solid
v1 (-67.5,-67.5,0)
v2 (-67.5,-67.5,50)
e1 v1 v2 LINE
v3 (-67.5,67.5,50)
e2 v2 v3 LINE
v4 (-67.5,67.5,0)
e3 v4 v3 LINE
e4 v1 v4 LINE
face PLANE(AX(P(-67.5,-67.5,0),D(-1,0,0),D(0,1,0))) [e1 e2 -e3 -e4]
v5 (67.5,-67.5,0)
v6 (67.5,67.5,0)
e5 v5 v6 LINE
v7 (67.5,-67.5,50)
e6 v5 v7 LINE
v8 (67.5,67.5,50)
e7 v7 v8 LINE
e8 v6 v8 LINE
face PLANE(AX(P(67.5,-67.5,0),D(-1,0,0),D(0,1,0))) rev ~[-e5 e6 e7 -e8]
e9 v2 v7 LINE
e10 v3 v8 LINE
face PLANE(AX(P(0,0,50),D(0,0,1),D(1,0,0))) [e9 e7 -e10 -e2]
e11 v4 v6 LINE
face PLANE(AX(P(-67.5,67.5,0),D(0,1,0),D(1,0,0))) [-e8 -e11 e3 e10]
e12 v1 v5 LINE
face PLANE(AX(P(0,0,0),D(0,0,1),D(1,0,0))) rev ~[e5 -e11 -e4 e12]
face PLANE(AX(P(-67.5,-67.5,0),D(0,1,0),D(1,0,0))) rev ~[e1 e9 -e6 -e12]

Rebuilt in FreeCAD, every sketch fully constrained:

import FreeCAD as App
import Part
import Sketcher
from FreeCAD import Vector

doc = App.newDocument("Part")
params = doc.addObject("Spreadsheet::Sheet", "Params")
for row, (alias, value) in enumerate([
    ("sketch1_width", "135 mm"),
    ("pad1_length", "50 mm"),
], start=1):
    params.set(f"A{row}", alias)
    params.set(f"B{row}", "=" + value)
    params.setAlias(f"B{row}", alias)

body = doc.addObject("PartDesign::Body", "Body")

sketch1 = doc.addObject("Sketcher::SketchObject", "Sketch")
body.addObject(sketch1)
sketch1.AttachmentSupport = (doc.XY_Plane, [""])
sketch1.MapMode = "FlatFace"
sketch1.addGeometry([
    Part.LineSegment(Vector(-67.5, 67.5, 0), Vector(-67.5, -67.5, 0)),
    Part.LineSegment(Vector(-67.5, -67.5, 0), Vector(67.5, -67.5, 0)),
    Part.LineSegment(Vector(67.5, -67.5, 0), Vector(67.5, 67.5, 0)),
    Part.LineSegment(Vector(67.5, 67.5, 0), Vector(-67.5, 67.5, 0)),
], False)
sketch1.addConstraint([
    Sketcher.Constraint("Coincident", 0, 2, 1, 1),
    Sketcher.Constraint("Coincident", 1, 2, 2, 1),
    Sketcher.Constraint("Coincident", 2, 2, 3, 1),
    Sketcher.Constraint("Coincident", 3, 2, 0, 1),
    Sketcher.Constraint("Vertical", 0),
    Sketcher.Constraint("Horizontal", 1),
    Sketcher.Constraint("Vertical", 2),
    Sketcher.Constraint("Horizontal", 3),
    Sketcher.Constraint("Symmetric", 0, 2, 2, 2, -1, 1),
    Sketcher.Constraint("Equal", 3, 0),
    Sketcher.Constraint("DistanceX", 1, 1, 1, 2, 135.0),
])
sketch1.setExpression("Constraints[10]", "Params.sketch1_width")
pad1 = doc.addObject("PartDesign::Pad", "Pad")
body.addObject(pad1)
pad1.Profile = sketch1
pad1.setExpression("Length", "Params.pad1_length")

doc.recompute()
